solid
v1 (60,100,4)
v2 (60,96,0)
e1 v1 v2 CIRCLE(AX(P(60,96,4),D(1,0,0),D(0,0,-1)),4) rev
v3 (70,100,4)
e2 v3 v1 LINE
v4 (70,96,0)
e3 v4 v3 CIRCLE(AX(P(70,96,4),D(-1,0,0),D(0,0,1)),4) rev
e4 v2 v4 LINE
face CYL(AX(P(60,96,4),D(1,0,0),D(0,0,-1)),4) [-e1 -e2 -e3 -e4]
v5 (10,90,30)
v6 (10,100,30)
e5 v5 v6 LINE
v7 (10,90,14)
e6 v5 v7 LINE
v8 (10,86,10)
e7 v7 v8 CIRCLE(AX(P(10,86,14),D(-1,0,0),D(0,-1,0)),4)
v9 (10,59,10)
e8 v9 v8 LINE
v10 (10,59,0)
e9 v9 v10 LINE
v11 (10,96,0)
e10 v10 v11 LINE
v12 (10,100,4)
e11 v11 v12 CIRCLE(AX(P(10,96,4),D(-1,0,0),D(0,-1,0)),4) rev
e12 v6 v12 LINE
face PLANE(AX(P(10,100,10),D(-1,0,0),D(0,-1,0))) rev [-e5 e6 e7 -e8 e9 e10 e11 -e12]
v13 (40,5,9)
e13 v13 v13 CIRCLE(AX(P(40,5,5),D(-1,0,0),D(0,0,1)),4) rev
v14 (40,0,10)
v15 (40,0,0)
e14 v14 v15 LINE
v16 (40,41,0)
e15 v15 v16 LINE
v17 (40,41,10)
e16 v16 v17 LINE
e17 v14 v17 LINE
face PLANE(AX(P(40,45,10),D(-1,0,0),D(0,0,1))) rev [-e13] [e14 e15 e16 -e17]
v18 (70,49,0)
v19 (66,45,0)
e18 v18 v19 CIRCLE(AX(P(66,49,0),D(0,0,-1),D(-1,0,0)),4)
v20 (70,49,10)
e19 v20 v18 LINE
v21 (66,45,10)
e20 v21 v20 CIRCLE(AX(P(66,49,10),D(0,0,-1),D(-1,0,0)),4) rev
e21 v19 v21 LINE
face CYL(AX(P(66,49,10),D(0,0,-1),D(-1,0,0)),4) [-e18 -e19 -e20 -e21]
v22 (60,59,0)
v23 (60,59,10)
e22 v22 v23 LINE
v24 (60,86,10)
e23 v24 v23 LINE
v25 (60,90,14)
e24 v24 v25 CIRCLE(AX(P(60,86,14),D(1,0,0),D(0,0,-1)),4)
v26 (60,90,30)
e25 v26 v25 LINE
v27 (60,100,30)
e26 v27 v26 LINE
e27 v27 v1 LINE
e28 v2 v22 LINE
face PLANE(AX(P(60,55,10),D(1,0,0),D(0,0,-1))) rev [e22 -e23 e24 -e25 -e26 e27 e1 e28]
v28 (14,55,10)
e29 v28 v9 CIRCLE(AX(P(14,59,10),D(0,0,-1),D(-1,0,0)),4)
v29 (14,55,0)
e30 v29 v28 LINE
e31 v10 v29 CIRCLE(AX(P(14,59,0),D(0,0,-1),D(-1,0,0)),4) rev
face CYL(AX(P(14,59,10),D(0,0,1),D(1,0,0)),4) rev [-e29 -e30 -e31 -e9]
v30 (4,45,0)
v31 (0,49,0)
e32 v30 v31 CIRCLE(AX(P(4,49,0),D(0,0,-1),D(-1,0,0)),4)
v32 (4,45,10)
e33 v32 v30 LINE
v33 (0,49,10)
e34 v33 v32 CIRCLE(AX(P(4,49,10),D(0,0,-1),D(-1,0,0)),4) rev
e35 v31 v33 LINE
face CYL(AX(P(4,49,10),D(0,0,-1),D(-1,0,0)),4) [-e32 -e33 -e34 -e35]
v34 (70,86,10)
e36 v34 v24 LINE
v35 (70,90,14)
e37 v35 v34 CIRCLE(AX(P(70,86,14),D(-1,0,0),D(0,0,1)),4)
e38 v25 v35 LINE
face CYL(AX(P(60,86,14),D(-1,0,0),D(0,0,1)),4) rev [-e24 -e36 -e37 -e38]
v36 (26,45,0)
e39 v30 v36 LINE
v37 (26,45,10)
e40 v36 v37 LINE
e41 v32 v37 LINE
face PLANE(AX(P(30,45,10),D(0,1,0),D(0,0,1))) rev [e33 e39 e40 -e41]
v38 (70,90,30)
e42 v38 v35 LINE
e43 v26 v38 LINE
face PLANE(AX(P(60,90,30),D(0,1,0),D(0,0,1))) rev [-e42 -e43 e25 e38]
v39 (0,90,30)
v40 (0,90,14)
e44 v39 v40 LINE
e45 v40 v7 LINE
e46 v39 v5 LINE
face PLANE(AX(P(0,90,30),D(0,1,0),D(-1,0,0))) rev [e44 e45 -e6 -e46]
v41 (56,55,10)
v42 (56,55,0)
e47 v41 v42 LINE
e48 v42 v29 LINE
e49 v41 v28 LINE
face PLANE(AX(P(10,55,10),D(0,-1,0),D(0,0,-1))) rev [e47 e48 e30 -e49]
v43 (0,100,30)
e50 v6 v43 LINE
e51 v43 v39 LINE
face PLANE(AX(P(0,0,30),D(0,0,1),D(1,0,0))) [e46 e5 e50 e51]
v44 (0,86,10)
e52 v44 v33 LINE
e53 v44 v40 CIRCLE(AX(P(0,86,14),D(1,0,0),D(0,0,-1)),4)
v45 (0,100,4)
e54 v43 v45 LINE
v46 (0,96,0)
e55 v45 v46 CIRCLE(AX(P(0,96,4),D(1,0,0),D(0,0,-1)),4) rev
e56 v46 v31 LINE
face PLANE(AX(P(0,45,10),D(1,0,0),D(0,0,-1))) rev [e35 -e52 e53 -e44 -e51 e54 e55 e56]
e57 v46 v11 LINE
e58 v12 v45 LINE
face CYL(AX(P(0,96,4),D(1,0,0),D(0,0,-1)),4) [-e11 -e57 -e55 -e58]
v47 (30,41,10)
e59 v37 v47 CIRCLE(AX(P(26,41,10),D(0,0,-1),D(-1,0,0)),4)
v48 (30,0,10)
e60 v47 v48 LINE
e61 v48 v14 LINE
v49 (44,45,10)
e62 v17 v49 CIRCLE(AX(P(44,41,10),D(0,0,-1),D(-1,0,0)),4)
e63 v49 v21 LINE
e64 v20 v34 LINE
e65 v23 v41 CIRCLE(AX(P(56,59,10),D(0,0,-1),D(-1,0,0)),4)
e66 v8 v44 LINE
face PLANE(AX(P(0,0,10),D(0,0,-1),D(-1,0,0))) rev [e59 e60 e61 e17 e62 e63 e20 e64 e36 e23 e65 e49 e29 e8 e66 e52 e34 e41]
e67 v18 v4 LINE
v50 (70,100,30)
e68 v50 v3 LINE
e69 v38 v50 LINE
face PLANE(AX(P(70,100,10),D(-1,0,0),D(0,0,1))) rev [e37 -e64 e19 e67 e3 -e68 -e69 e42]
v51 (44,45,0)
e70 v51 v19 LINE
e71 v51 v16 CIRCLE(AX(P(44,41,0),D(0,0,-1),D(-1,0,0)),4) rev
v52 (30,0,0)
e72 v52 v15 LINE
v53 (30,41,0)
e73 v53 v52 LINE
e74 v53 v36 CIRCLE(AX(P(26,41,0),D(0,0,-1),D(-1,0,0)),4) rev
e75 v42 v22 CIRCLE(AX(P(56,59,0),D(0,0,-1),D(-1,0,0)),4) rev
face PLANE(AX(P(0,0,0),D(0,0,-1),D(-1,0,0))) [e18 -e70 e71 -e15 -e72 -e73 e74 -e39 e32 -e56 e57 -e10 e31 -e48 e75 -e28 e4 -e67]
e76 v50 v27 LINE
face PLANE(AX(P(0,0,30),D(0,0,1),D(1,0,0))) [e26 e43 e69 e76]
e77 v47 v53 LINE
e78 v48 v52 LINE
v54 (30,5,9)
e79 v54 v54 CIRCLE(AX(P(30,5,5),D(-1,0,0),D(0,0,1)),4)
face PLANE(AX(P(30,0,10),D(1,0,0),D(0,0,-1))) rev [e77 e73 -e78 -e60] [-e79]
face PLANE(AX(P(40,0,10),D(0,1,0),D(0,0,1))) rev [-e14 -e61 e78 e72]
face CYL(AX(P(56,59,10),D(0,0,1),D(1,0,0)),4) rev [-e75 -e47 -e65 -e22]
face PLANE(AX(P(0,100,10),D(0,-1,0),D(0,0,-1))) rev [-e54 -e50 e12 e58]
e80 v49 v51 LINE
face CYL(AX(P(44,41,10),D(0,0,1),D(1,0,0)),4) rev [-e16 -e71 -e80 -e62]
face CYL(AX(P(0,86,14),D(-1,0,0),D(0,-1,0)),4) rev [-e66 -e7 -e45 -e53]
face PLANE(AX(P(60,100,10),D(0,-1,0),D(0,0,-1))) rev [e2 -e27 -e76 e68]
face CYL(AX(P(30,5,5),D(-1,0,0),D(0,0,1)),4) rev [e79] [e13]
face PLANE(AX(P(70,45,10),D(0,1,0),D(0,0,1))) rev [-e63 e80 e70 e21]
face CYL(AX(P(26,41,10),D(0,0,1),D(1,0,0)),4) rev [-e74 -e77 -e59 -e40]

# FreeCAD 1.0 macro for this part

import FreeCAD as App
import Part
import Sketcher
from FreeCAD import Vector
Q = App.Units.Quantity


def edges_at(feature, points):
    """Names of the edges that pass closest to the given points."""
    edges = feature.Shape.Edges
    near = lambda p: min(range(len(edges)), key=lambda i: edges[i].distToShape(Part.Vertex(*p))[0])
    return sorted({f"Edge{near(p) + 1}" for p in points})

doc = App.newDocument("Part")
body = doc.addObject("PartDesign::Body", "Body")

# Sketch on XY plane
sketch1 = body.newObject("Sketcher::SketchObject", "Sketch")
sketch1.AttachmentSupport = (doc.getObject("XY_Plane"), [""])
sketch1.MapMode = "FlatFace"
sketch1.addGeometry([
    Part.LineSegment(Vector(30, 45, 0), Vector(30, 0, 0)),  # 0
    Part.LineSegment(Vector(30, 0, 0), Vector(40, 0, 0)),  # 1
    Part.LineSegment(Vector(40, 0, 0), Vector(40, 45, 0)),  # 2
    Part.LineSegment(Vector(40, 45, 0), Vector(70, 45, 0)),  # 3
    Part.LineSegment(Vector(70, 45, 0), Vector(70, 100, 0)),  # 4
    Part.LineSegment(Vector(70, 100, 0), Vector(60, 100, 0)),  # 5
    Part.LineSegment(Vector(60, 100, 0), Vector(60, 55, 0)),  # 6
    Part.LineSegment(Vector(60, 55, 0), Vector(10, 55, 0)),  # 7
    Part.LineSegment(Vector(10, 55, 0), Vector(10, 100, 0)),  # 8
    Part.LineSegment(Vector(10, 100, 0), Vector(0, 100, 0)),  # 9
    Part.LineSegment(Vector(0, 100, 0), Vector(0, 45, 0)),  # 10
    Part.LineSegment(Vector(0, 45, 0), Vector(30, 45, 0)),  # 11
], False)
sketch1.addConstraint([
    Sketcher.Constraint("Coincident", 0, 2, 1, 1),
    Sketcher.Constraint("Coincident", 1, 2, 2, 1),
    Sketcher.Constraint("Coincident", 2, 2, 3, 1),
    Sketcher.Constraint("Coincident", 3, 2, 4, 1),
    Sketcher.Constraint("Coincident", 4, 2, 5, 1),
    Sketcher.Constraint("Coincident", 5, 2, 6, 1),
    Sketcher.Constraint("Coincident", 6, 2, 7, 1),
    Sketcher.Constraint("Coincident", 7, 2, 8, 1),
    Sketcher.Constraint("Coincident", 8, 2, 9, 1),
    Sketcher.Constraint("Coincident", 9, 2, 10, 1),
    Sketcher.Constraint("Coincident", 10, 2, 11, 1),
    Sketcher.Constraint("Coincident", 11, 2, 0, 1),
    Sketcher.Constraint("Vertical", 0),
    Sketcher.Constraint("Horizontal", 1),
    Sketcher.Constraint("Vertical", 2),
    Sketcher.Constraint("Horizontal", 3),
    Sketcher.Constraint("Vertical", 4),
    Sketcher.Constraint("Horizontal", 5),
    Sketcher.Constraint("Vertical", 6),
    Sketcher.Constraint("Horizontal", 7),
    Sketcher.Constraint("Vertical", 8),
    Sketcher.Constraint("Horizontal", 9),
    Sketcher.Constraint("Vertical", 10),
    Sketcher.Constraint("Horizontal", 11),
    Sketcher.Constraint("PointOnObject", 0, 2, -1),
    Sketcher.Constraint("PointOnObject", 9, 2, -2),
    Sketcher.Constraint("Horizontal", 5, 2, 8, 2),
    Sketcher.Constraint("Horizontal", 3, 2, 10, 2),
    Sketcher.Constraint("Equal", 1, 5),
    Sketcher.Constraint("Equal", 5, 9),
    Sketcher.Constraint("Equal", 3, 11),
    Sketcher.Constraint("Equal", 2, 6),
    Sketcher.Constraint("DistanceX", 1, 1, 1, 2, Q("10 mm")),
    Sketcher.Constraint("DistanceX", 3, 1, 3, 2, Q("30 mm")),
    Sketcher.Constraint("DistanceY", 0, 2, 0, 1, Q("45 mm")),
    Sketcher.Constraint("DistanceY", 4, 1, 4, 2, Q("55 mm")),
])
pad1 = body.newObject("PartDesign::Pad", "Pad")
pad1.Profile = sketch1
pad1.Length = 10

# Sketch on XY plane
sketch2 = body.newObject("Sketcher::SketchObject", "Sketch001")
sketch2.AttachmentSupport = (doc.getObject("XY_Plane"), [""])
sketch2.MapMode = "FlatFace"
sketch2.AttachmentOffset = App.Placement(Vector(0, 0, 10), App.Rotation())
sketch2.addGeometry([
    Part.LineSegment(Vector(0, 100, 0), Vector(0, 90, 0)),  # 0
    Part.LineSegment(Vector(0, 90, 0), Vector(10, 90, 0)),  # 1
    Part.LineSegment(Vector(10, 90, 0), Vector(10, 100, 0)),  # 2
    Part.LineSegment(Vector(10, 100, 0), Vector(0, 100, 0)),  # 3
    Part.LineSegment(Vector(60, 100, 0), Vector(60, 90, 0)),  # 4
    Part.LineSegment(Vector(60, 90, 0), Vector(70, 90, 0)),  # 5
    Part.LineSegment(Vector(70, 90, 0), Vector(70, 100, 0)),  # 6
    Part.LineSegment(Vector(70, 100, 0), Vector(60, 100, 0)),  # 7
], False)
sketch2.addConstraint([
    Sketcher.Constraint("Coincident", 0, 2, 1, 1),
    Sketcher.Constraint("Coincident", 1, 2, 2, 1),
    Sketcher.Constraint("Coincident", 2, 2, 3, 1),
    Sketcher.Constraint("Coincident", 3, 2, 0, 1),
    Sketcher.Constraint("Coincident", 4, 2, 5, 1),
    Sketcher.Constraint("Coincident", 5, 2, 6, 1),
    Sketcher.Constraint("Coincident", 6, 2, 7, 1),
    Sketcher.Constraint("Coincident", 7, 2, 4, 1),
    Sketcher.Constraint("Vertical", 0),
    Sketcher.Constraint("Horizontal", 1),
    Sketcher.Constraint("Vertical", 2),
    Sketcher.Constraint("Horizontal", 3),
    Sketcher.Constraint("Vertical", 4),
    Sketcher.Constraint("Horizontal", 5),
    Sketcher.Constraint("Vertical", 6),
    Sketcher.Constraint("Horizontal", 7),
    Sketcher.Constraint("PointOnObject", 0, 2, -2),
    Sketcher.Constraint("Horizontal", 1, 2, 4, 2),
    Sketcher.Constraint("Horizontal", 3, 2, 6, 2),
    Sketcher.Constraint("Equal", 3, 5),
    Sketcher.Constraint("Equal", 7, 0),
    Sketcher.Constraint("DistanceX", 1, 1, 1, 2, Q("10 mm")),
    Sketcher.Constraint("DistanceY", -1, 1, 0, 2, Q("90 mm")),
    Sketcher.Constraint("DistanceX", -1, 1, 4, 2, Q("60 mm")),
])
pad2 = body.newObject("PartDesign::Pad", "Pad001")
pad2.Profile = sketch2
pad2.Length = 20

# Sketch on YZ plane
sketch3 = body.newObject("Sketcher::SketchObject", "Sketch002")
sketch3.AttachmentSupport = (doc.getObject("YZ_Plane"), [""])
sketch3.MapMode = "FlatFace"
sketch3.AttachmentOffset = App.Placement(Vector(0, 0, 30), App.Rotation())
sketch3.addGeometry(Part.Circle(Vector(5, 5, 0), Vector(0, 0, 1), 4), False)
sketch3.addConstraint([
    Sketcher.Constraint("Diameter", 0, Q("8 mm")),
    Sketcher.Constraint("DistanceX", -1, 1, 0, 3, Q("5 mm")),
    Sketcher.Constraint("DistanceY", -1, 1, 0, 3, Q("5 mm")),
])
doc.recompute()
hole = body.newObject("PartDesign::Hole", "Hole")
hole.Profile = sketch3
hole.ThreadType = "None"
hole.Diameter = 8
hole.DepthType = "Dimension"
hole.Depth = 10
hole.DrillPoint = "Angled"
hole.DrillPointAngle = 118
hole.Reversed = True
doc.recompute()

fillet = body.newObject("PartDesign::Fillet", "Fillet")
fillet.Base = (hole, edges_at(hole, [
    (5, 100, 0),
    (65, 100, 0),
    (70, 45, 5),
    (40, 45, 5),
    (30, 45, 5),
    (0, 45, 5),
    (10, 55, 5),
    (60, 55, 5),
    (5, 90, 10),
    (65, 90, 10),
]))
fillet.Radius = 4

doc.recompute()
